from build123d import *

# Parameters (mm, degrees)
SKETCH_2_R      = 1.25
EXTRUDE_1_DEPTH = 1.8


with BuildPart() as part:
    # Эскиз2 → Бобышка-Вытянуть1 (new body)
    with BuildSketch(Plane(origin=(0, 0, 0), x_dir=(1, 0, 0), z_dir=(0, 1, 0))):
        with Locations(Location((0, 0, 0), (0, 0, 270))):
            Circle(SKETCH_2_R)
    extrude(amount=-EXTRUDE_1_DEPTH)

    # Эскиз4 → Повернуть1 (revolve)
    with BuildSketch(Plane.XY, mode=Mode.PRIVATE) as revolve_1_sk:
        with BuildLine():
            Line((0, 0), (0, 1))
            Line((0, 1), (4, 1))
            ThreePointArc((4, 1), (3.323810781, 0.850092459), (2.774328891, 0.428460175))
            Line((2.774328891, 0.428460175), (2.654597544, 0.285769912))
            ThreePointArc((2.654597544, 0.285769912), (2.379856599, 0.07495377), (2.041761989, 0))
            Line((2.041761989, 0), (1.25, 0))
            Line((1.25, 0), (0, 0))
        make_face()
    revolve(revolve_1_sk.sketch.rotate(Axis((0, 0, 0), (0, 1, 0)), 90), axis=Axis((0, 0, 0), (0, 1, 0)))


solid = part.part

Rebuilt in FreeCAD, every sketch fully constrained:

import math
import FreeCAD as App
import Part
import Sketcher
Q = App.Units.Quantity

doc = App.newDocument("Part")
body = doc.addObject("PartDesign::Body", "Body")

# Sketch on XZ plane
sketch1 = body.newObject("Sketcher::SketchObject", "Sketch")
sketch1.AttachmentSupport = (doc.getObject("XZ_Plane"), [""])
sketch1.MapMode = "FlatFace"
sketch1.addGeometry(Part.Circle(App.Vector(0, 0, 0), App.Vector(0, 0, 1), 1.2), False)
sketch1.addConstraint([
    Sketcher.Constraint("Coincident", 0, 3, -1, 1),
    Sketcher.Constraint("Diameter", 0, 2.5),
])
pad1 = body.newObject("PartDesign::Pad", "Pad")
pad1.Profile = sketch1
pad1.Length = 1.8

# Sketch on XY plane
sketch2 = body.newObject("Sketcher::SketchObject", "Sketch001")
sketch2.AttachmentSupport = (doc.getObject("XY_Plane"), [""])
sketch2.MapMode = "FlatFace"
sketch2.addGeometry([
    Part.LineSegment(App.Vector(0, 1, 0), App.Vector(0, 0, 0)),  # 0
    Part.LineSegment(App.Vector(0, 0, 0), App.Vector(2.04, 0, 0)),  # 1
    Part.ArcOfCircle(Part.Circle(App.Vector(2.04, 0.8, 0), App.Vector(0, 0, 1), 0.8), math.radians(-90), math.radians(-40)),  # 2
    Part.LineSegment(App.Vector(2.65, 0.29, 0), App.Vector(2.77, 0.43, 0)),  # 3
    Part.ArcOfCircle(Part.Circle(App.Vector(4, -0.6, 0), App.Vector(0, 0, 1), 1.6), math.radians(90), math.radians(140)),  # 4
    Part.LineSegment(App.Vector(4, 1, 0), App.Vector(0, 1, 0)),  # 5
], False)
sketch2.addConstraint([
    Sketcher.Constraint("Coincident", 0, 2, 1, 1),
    Sketcher.Constraint("Tangent", 1, 2, 2, 1),
    Sketcher.Constraint("Tangent", 2, 2, 3, 1),
    Sketcher.Constraint("Tangent", 3, 2, 4, 2),
    Sketcher.Constraint("Tangent", 4, 1, 5, 1),
    Sketcher.Constraint("Coincident", 5, 2, 0, 1),
    Sketcher.Constraint("Vertical", 0),
    Sketcher.Constraint("Horizontal", 1),
    Sketcher.Constraint("Horizontal", 5),
    Sketcher.Constraint("Coincident", 0, 2, -1, 1),
    Sketcher.Constraint("Radius", 2, 0.8),
    Sketcher.Constraint("Radius", 4, 1.6),
    Sketcher.Constraint("DistanceX", 5, 2, 5, 1, 4.0),
    Sketcher.Constraint("DistanceY", 0, 2, 0, 1, 1.0),
    Sketcher.Constraint("Angle", 3, Q("50 deg")),
])
revolution = body.newObject("PartDesign::Revolution", "Revolution")
revolution.Profile = sketch2
revolution.ReferenceAxis = (sketch2, ["V_Axis"])
revolution.Angle = 360

doc.recompute()
